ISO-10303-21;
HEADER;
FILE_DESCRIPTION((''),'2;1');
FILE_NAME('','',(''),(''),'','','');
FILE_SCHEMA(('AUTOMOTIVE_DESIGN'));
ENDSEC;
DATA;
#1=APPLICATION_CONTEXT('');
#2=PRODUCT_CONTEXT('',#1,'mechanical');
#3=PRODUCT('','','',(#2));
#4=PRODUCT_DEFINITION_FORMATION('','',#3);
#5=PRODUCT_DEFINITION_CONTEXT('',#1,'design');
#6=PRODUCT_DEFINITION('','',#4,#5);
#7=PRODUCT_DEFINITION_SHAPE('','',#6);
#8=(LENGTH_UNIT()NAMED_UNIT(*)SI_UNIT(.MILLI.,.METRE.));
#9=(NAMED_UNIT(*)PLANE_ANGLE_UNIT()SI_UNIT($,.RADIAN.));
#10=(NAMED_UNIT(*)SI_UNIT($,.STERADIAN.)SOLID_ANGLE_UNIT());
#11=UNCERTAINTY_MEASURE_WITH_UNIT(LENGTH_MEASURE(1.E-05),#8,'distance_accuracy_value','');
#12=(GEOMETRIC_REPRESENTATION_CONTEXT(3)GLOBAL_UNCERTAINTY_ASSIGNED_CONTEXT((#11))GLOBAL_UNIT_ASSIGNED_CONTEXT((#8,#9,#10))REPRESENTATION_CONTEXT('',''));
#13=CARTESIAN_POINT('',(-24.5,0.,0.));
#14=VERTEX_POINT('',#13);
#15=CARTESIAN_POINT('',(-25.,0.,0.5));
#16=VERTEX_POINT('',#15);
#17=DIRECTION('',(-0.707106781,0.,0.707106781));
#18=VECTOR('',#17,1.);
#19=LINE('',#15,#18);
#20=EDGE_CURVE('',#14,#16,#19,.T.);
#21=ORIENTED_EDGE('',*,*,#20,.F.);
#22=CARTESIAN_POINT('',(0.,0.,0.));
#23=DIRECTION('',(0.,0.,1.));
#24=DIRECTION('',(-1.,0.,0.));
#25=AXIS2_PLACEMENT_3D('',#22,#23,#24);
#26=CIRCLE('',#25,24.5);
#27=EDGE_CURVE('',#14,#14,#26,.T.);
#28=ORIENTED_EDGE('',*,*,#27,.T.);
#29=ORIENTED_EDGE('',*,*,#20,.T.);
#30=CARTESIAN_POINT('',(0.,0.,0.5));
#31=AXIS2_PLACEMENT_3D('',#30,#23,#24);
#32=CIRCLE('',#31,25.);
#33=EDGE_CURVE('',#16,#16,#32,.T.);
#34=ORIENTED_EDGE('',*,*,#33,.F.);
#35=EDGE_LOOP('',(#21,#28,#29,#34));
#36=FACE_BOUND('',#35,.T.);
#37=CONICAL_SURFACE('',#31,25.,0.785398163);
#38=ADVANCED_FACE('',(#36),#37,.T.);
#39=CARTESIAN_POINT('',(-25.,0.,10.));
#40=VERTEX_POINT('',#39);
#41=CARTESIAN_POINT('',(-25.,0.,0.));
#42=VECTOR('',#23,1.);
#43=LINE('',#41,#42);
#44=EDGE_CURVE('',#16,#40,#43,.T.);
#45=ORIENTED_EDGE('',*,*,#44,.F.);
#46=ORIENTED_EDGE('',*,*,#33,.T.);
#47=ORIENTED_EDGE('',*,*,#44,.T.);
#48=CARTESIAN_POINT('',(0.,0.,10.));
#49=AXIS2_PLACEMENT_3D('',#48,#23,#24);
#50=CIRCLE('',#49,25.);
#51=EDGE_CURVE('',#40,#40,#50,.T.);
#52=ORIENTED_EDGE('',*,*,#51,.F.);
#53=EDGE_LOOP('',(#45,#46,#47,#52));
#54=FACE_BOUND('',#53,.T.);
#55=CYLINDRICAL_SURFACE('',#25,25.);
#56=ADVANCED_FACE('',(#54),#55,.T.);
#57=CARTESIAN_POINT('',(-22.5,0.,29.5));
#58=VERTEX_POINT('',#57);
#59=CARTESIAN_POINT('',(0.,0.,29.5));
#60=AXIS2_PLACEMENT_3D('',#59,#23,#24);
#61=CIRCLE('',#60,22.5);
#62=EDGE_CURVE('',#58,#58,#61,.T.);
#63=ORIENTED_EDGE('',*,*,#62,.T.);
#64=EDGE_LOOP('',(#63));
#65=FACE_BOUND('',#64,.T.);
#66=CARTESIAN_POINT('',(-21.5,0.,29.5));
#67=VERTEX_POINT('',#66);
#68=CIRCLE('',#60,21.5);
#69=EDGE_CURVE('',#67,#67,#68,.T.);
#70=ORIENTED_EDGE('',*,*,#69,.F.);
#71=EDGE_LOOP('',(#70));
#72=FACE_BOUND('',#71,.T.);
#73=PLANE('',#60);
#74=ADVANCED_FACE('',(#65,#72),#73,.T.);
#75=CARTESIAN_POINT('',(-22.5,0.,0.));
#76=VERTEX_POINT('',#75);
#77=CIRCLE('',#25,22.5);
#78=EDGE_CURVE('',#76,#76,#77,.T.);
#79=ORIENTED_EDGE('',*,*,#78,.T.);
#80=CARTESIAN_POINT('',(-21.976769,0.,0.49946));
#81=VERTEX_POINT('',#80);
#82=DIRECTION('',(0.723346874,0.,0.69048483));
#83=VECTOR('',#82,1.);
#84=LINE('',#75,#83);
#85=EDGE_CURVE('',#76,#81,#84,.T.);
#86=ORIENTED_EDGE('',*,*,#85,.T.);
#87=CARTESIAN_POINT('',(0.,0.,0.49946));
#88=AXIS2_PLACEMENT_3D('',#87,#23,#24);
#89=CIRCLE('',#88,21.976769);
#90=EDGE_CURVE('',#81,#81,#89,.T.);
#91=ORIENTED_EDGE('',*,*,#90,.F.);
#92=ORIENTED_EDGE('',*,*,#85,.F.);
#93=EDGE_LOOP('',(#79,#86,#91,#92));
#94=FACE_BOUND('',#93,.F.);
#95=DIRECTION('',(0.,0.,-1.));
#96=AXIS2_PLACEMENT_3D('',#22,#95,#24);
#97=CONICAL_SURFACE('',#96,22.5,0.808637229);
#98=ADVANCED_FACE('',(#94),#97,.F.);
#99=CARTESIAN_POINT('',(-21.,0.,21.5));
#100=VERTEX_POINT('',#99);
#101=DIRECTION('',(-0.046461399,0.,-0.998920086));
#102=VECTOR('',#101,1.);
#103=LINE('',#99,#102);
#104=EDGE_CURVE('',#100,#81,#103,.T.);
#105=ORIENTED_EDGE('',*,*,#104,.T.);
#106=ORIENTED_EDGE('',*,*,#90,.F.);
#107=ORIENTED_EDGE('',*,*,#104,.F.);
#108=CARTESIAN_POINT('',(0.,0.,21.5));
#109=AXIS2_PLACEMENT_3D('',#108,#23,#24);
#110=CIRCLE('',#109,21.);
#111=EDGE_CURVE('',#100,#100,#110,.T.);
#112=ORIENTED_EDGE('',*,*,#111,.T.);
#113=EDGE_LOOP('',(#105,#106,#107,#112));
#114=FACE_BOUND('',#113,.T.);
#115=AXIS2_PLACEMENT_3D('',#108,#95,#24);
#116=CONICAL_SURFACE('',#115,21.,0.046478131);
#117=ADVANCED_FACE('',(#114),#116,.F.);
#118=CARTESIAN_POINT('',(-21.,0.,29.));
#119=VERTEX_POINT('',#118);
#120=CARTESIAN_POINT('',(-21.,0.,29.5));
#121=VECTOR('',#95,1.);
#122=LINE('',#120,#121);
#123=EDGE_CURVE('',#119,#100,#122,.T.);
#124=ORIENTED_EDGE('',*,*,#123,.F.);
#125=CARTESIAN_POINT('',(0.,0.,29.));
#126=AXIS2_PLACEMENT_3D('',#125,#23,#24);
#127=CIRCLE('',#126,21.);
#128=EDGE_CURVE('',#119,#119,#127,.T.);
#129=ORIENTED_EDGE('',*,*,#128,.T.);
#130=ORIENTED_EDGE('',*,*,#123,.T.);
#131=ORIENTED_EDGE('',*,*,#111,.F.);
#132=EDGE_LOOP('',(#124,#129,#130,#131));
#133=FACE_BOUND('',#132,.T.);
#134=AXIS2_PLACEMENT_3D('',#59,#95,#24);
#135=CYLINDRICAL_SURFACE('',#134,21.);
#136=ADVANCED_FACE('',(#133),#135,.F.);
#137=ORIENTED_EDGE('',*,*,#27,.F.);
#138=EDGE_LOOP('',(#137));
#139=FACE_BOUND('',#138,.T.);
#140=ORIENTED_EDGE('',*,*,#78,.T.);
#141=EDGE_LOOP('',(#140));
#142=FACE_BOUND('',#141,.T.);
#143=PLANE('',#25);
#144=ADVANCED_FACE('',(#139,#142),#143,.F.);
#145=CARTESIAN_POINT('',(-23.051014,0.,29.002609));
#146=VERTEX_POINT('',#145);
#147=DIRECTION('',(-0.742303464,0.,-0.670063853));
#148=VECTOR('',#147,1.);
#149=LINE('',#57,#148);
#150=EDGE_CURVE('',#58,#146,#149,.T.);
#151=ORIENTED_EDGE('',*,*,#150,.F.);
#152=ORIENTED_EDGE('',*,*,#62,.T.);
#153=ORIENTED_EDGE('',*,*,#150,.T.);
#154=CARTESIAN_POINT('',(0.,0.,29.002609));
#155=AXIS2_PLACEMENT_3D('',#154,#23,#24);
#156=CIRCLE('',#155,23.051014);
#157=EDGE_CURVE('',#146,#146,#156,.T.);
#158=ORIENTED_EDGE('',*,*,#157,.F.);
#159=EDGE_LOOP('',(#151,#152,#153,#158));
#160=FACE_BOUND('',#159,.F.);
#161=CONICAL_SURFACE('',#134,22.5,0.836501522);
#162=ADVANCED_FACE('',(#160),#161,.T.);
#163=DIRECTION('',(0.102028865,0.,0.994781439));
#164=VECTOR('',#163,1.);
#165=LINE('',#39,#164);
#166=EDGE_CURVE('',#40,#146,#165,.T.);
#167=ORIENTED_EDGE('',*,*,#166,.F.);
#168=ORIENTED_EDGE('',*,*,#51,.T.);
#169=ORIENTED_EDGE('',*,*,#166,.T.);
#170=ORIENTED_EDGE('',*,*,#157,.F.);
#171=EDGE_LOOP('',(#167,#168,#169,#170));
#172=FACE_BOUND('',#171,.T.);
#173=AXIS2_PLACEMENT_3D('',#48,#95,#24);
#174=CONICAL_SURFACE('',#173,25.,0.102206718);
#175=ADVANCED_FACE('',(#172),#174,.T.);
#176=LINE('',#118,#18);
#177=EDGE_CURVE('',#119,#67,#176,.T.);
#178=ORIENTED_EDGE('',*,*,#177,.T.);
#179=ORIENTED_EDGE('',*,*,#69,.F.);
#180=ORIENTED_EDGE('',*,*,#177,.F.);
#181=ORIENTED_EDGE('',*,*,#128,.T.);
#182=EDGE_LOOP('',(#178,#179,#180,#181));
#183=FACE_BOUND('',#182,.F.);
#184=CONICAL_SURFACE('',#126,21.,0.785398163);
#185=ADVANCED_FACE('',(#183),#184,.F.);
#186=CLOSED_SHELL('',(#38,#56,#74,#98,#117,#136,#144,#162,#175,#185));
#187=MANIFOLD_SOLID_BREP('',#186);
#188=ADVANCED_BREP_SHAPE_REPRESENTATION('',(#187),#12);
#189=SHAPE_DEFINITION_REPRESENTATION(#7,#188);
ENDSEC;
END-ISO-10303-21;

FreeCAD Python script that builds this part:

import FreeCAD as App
import Part
import Sketcher
from FreeCAD import Vector
Q = App.Units.Quantity


def edges_at(feature, points):
    """Names of the edges that pass closest to the given points."""
    edges = feature.Shape.Edges
    near = lambda p: min(range(len(edges)), key=lambda i: edges[i].distToShape(Part.Vertex(*p))[0])
    return sorted({f"Edge{near(p) + 1}" for p in points})

doc = App.newDocument("Part")
body = doc.addObject("PartDesign::Body", "Body")

sketch1 = body.newObject("Sketcher::SketchObject", "Sketch")
sketch1.AttachmentSupport = (doc.getObject("XZ_Plane"), [""])
sketch1.MapMode = "FlatFace"
sketch1.addGeometry([
    Part.LineSegment(Vector(-22, 0, 0), Vector(-25, 0, 0)),
    Part.LineSegment(Vector(-25, 0, 0), Vector(-25, 10, 0)),
    Part.LineSegment(Vector(-25, 10, 0), Vector(-23, 29.5, 0)),
    Part.LineSegment(Vector(-23, 29.5, 0), Vector(-21, 29.5, 0)),
    Part.LineSegment(Vector(-21, 29.5, 0), Vector(-21, 21.5, 0)),
    Part.LineSegment(Vector(-21, 21.5, 0), Vector(-22, 0, 0)),
], False)
sketch1.addConstraint([
    Sketcher.Constraint("Coincident", 0, 2, 1, 1),
    Sketcher.Constraint("Coincident", 1, 2, 2, 1),
    Sketcher.Constraint("Coincident", 2, 2, 3, 1),
    Sketcher.Constraint("Coincident", 3, 2, 4, 1),
    Sketcher.Constraint("Coincident", 4, 2, 5, 1),
    Sketcher.Constraint("Coincident", 5, 2, 0, 1),
    Sketcher.Constraint("Horizontal", 0),
    Sketcher.Constraint("Vertical", 1),
    Sketcher.Constraint("Horizontal", 3),
    Sketcher.Constraint("Vertical", 4),
    Sketcher.Constraint("PointOnObject", 0, 2, -1),
    Sketcher.Constraint("DistanceX", 0, 2, 0, 1, Q("3 mm")),
    Sketcher.Constraint("DistanceX", 3, 1, 3, 2, Q("2 mm")),
    Sketcher.Constraint("DistanceY", 1, 1, 1, 2, Q("10 mm")),
    Sketcher.Constraint("DistanceY", 4, 2, 4, 1, Q("8 mm")),
    Sketcher.Constraint("DistanceX", 1, 2, 2, 2, Q("2 mm")),
    Sketcher.Constraint("DistanceY", -1, 1, 2, 2, Q("29.5 mm")),
    Sketcher.Constraint("DistanceX", 0, 2, -1, 1, Q("25 mm")),
])
revolution = body.newObject("PartDesign::Revolution", "Revolution")
revolution.Profile = sketch1
revolution.ReferenceAxis = (sketch1, ["V_Axis"])
revolution.Angle = 360
doc.recompute()

chamfer = body.newObject("PartDesign::Chamfer", "Chamfer")
chamfer.Base = (revolution, edges_at(revolution, [
    (25, 0, 0),
    (22, 0, 0),
    (23, 0, 29.5),
    (21, 0, 29.5),
]))
chamfer.Size = 0.5

doc.recompute()
